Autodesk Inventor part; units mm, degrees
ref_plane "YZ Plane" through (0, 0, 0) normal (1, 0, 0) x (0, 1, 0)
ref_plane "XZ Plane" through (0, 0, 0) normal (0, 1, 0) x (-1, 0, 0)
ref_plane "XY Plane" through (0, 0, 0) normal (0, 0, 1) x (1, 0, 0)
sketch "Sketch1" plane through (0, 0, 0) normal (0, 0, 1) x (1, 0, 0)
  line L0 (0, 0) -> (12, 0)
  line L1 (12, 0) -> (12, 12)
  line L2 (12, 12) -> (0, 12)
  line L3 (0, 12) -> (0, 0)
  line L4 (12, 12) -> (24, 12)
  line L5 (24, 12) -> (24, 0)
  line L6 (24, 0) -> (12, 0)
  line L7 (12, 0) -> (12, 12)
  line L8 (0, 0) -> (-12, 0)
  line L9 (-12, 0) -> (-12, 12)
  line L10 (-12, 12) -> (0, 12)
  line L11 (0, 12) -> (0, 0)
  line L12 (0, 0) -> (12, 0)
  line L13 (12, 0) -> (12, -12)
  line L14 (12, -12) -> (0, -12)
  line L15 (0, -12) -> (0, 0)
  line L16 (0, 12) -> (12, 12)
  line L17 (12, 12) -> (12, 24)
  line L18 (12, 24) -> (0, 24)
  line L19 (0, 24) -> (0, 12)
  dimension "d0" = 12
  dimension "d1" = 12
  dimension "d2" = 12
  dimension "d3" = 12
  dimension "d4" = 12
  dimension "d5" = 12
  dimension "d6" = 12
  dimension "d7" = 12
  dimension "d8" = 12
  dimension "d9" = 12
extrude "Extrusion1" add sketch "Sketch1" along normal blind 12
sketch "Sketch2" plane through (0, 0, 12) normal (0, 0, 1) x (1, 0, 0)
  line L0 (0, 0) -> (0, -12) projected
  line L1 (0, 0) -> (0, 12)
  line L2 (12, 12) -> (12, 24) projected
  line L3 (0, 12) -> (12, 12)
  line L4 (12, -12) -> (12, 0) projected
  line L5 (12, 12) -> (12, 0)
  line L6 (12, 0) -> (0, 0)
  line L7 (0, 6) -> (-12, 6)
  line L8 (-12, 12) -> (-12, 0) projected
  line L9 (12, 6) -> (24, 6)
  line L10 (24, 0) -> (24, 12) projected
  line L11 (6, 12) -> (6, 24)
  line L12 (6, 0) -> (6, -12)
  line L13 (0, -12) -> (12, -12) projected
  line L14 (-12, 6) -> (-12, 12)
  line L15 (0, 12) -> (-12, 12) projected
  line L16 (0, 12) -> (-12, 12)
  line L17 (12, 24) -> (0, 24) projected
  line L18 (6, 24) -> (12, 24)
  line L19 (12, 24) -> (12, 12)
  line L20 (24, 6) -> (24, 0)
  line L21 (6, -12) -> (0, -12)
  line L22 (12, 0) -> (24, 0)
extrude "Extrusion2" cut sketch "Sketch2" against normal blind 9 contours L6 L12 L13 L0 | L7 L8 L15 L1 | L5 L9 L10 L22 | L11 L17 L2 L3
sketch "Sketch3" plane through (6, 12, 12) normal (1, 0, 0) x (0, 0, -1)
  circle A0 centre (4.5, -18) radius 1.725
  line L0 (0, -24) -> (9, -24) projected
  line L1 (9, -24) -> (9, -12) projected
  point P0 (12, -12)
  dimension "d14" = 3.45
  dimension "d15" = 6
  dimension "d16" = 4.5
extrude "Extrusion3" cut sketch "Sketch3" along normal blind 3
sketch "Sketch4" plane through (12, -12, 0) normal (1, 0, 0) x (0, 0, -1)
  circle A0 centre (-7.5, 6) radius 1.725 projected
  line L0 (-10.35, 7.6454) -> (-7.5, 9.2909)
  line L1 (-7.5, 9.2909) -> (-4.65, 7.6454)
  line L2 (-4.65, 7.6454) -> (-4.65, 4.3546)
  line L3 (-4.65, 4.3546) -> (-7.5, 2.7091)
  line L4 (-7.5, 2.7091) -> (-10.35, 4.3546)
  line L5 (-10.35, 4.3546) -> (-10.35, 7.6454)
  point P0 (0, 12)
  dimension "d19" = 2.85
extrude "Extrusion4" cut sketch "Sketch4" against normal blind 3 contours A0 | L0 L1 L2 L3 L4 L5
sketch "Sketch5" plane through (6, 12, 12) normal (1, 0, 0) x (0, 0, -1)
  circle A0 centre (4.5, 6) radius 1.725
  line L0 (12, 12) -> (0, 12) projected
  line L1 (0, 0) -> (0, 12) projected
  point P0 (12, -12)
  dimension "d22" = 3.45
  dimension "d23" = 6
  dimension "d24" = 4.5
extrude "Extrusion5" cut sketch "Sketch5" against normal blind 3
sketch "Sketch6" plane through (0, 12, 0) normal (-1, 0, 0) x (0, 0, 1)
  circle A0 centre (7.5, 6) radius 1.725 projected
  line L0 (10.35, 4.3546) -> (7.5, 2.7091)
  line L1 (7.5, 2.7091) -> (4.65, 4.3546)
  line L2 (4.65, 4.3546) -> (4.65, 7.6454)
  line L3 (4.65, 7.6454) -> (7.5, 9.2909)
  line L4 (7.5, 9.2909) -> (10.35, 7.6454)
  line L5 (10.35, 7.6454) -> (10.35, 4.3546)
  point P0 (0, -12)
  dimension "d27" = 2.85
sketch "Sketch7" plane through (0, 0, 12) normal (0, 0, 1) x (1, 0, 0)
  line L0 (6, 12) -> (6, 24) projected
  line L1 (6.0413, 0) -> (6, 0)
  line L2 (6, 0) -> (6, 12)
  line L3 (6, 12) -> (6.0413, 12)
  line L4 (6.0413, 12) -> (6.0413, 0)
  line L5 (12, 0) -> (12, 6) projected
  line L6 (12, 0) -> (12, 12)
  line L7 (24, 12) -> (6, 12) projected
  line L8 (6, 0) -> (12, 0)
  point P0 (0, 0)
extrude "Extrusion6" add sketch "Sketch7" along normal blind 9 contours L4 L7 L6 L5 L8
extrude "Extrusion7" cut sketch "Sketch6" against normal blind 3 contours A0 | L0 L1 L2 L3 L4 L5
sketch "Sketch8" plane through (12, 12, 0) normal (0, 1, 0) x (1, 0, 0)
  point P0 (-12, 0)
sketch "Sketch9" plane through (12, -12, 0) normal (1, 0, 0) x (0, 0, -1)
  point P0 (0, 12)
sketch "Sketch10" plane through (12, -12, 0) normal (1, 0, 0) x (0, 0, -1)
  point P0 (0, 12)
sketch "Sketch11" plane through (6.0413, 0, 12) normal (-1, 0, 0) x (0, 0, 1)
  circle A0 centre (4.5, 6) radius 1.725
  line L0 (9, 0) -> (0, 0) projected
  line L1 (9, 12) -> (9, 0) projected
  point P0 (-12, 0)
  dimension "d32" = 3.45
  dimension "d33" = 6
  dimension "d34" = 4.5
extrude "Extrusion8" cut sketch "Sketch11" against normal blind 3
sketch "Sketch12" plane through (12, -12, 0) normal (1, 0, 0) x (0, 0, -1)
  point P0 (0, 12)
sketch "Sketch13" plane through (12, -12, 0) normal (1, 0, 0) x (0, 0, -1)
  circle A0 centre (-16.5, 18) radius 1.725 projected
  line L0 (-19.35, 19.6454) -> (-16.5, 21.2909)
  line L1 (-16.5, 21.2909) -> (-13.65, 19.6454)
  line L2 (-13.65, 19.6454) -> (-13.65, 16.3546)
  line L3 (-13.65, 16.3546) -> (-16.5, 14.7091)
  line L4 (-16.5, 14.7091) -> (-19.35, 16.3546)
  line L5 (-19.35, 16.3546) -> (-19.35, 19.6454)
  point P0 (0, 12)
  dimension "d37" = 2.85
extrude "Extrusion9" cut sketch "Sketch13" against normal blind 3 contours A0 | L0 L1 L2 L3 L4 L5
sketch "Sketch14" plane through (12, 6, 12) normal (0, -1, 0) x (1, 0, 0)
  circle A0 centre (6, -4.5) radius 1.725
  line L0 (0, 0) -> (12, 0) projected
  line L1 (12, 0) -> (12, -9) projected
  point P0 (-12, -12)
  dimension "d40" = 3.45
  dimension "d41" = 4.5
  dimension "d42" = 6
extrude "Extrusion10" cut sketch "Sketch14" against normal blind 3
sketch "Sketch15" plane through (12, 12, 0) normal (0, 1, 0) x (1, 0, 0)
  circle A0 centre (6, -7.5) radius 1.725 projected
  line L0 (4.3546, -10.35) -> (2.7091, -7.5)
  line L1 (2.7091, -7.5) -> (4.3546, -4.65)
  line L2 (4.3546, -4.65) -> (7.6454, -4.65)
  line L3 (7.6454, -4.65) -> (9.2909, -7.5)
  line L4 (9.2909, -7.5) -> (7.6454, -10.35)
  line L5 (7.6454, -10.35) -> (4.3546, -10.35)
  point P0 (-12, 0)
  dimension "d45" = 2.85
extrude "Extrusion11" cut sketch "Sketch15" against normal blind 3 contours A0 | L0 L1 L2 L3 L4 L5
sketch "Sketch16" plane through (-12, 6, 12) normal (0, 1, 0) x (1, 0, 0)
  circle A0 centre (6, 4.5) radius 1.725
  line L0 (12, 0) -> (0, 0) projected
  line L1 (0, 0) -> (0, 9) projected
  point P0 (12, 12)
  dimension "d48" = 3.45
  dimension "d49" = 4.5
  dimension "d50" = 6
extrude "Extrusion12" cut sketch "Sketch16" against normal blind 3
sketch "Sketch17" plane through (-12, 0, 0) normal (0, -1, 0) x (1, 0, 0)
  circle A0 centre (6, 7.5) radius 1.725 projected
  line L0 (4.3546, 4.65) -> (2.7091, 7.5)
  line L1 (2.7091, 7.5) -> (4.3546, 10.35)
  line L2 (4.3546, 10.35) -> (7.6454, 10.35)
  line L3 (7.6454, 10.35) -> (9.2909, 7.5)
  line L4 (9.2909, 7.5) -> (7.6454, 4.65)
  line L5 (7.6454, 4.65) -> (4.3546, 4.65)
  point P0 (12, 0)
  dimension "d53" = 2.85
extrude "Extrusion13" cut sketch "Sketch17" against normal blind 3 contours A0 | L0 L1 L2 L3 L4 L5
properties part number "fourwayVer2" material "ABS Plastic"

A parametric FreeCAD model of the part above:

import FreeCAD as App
import Part
import Sketcher
Q = App.Units.Quantity


def add_polygon(sketch, points):
    """Adds a closed chain of lines whose ends are joined by coincident constraints."""
    first, n = sketch.GeometryCount, len(points)
    for a, b in zip(points, points[1:] + points[:1]):
        sketch.addGeometry(Part.LineSegment(App.Vector(*a, 0), App.Vector(*b, 0)), False)
    for i in range(n):
        sketch.addConstraint(Sketcher.Constraint("Coincident", first + i, 2, first + (i + 1) % n, 1))

doc = App.newDocument("Part")
body = doc.addObject("PartDesign::Body", "Body")

# Sketch on XY plane
sketch1 = doc.addObject("Sketcher::SketchObject", "Sketch")
body.addObject(sketch1)
sketch1.AttachmentSupport = (doc.XY_Plane, [""])
sketch1.MapMode = "FlatFace"
add_polygon(sketch1, [(-12, 0), (0, 0), (0, -12), (12, -12), (12, 0), (24, 0), (24, 12), (12, 12), (12, 24), (0, 24), (0, 12), (-12, 12)])  # lines 0-11
sketch1.addConstraint(Sketcher.Constraint("Horizontal", 0))
sketch1.addConstraint(Sketcher.Constraint("Vertical", 1))
sketch1.addConstraint(Sketcher.Constraint("Horizontal", 2))
sketch1.addConstraint(Sketcher.Constraint("Vertical", 3))
sketch1.addConstraint(Sketcher.Constraint("Horizontal", 4))
sketch1.addConstraint(Sketcher.Constraint("Vertical", 5))
sketch1.addConstraint(Sketcher.Constraint("Horizontal", 6))
sketch1.addConstraint(Sketcher.Constraint("Vertical", 7))
sketch1.addConstraint(Sketcher.Constraint("Horizontal", 8))
sketch1.addConstraint(Sketcher.Constraint("Vertical", 9))
sketch1.addConstraint(Sketcher.Constraint("Horizontal", 10))
sketch1.addConstraint(Sketcher.Constraint("Vertical", 11))
sketch1.addConstraint(Sketcher.Constraint("Coincident", 0, 2, -1, 1))
sketch1.addConstraint(Sketcher.Constraint("Symmetric", 1, 2, 9, 2, -1, 1))
sketch1.addConstraint(Sketcher.Constraint("Symmetric", 3, 2, 11, 2, -1, 1))
sketch1.addConstraint(Sketcher.Constraint("Symmetric", 6, 2, 10, 2, -2))
sketch1.addConstraint(Sketcher.Constraint("Equal", 2, 4))
sketch1.addConstraint(Sketcher.Constraint("Equal", 10, 1))
sketch1.addConstraint(Sketcher.Constraint("Equal", 5, 7))
sketch1.addConstraint(Sketcher.Constraint("DistanceX", 0, 1, 0, 2, Q("12 mm")))
pad1 = doc.addObject("PartDesign::Pad", "Pad")
body.addObject(pad1)
pad1.Profile = sketch1
pad1.Length = 12

# Sketch on XY plane
sketch2 = doc.addObject("Sketcher::SketchObject", "Sketch001")
body.addObject(sketch2)
sketch2.AttachmentSupport = (doc.XY_Plane, [""])
sketch2.MapMode = "FlatFace"
sketch2.AttachmentOffset = App.Placement(App.Vector(0, 0, 12), App.Rotation())
add_polygon(sketch2, [(6, 0), (0, 0), (0, -12), (6, -12)])  # lines 0-3
add_polygon(sketch2, [(-12, 6), (0, 6), (0, 12), (-12, 12)])  # lines 4-7
add_polygon(sketch2, [(12, 6), (12, 0), (24, 0), (24, 6)])  # lines 8-11
add_polygon(sketch2, [(6, 24), (6, 12), (12, 12), (12, 24)])  # lines 12-15
sketch2.addConstraint(Sketcher.Constraint("Horizontal", 0))
sketch2.addConstraint(Sketcher.Constraint("Vertical", 1))
sketch2.addConstraint(Sketcher.Constraint("Horizontal", 2))
sketch2.addConstraint(Sketcher.Constraint("Vertical", 3))
sketch2.addConstraint(Sketcher.Constraint("Horizontal", 4))
sketch2.addConstraint(Sketcher.Constraint("Vertical", 5))
sketch2.addConstraint(Sketcher.Constraint("Horizontal", 6))
sketch2.addConstraint(Sketcher.Constraint("Vertical", 7))
sketch2.addConstraint(Sketcher.Constraint("Vertical", 8))
sketch2.addConstraint(Sketcher.Constraint("Horizontal", 9))
sketch2.addConstraint(Sketcher.Constraint("Vertical", 10))
sketch2.addConstraint(Sketcher.Constraint("Horizontal", 11))
sketch2.addConstraint(Sketcher.Constraint("Vertical", 12))
sketch2.addConstraint(Sketcher.Constraint("Horizontal", 13))
sketch2.addConstraint(Sketcher.Constraint("Vertical", 14))
sketch2.addConstraint(Sketcher.Constraint("Horizontal", 15))
sketch2.addConstraint(Sketcher.Constraint("Coincident", 0, 2, -1, 1))
sketch2.addConstraint(Sketcher.Constraint("Symmetric", 1, 2, 5, 2, -1, 1))
sketch2.addConstraint(Sketcher.Constraint("Symmetric", 7, 2, 11, 2, -2))
sketch2.addConstraint(Sketcher.Constraint("Symmetric", 6, 2, 13, 2, -2))
sketch2.addConstraint(Sketcher.Constraint("PointOnObject", 8, 2, -1))
sketch2.addConstraint(Sketcher.Constraint("Vertical", 3, 2, 12, 2))
sketch2.addConstraint(Sketcher.Constraint("Equal", 6, 9))
sketch2.addConstraint(Sketcher.Constraint("Equal", 2, 13))
sketch2.addConstraint(Sketcher.Constraint("Equal", 11, 1))
sketch2.addConstraint(Sketcher.Constraint("Equal", 15, 5))
sketch2.addConstraint(Sketcher.Constraint("Equal", 3, 12))
sketch2.addConstraint(Sketcher.Constraint("DistanceX", 0, 2, 0, 1, Q("6 mm")))
pocket1 = doc.addObject("PartDesign::Pocket", "Pocket")
body.addObject(pocket1)
pocket1.Profile = sketch2
pocket1.Length = 9

# Sketch on YZ plane
sketch3 = doc.addObject("Sketcher::SketchObject", "Sketch002")
body.addObject(sketch3)
sketch3.AttachmentSupport = (doc.YZ_Plane, [""])
sketch3.MapMode = "FlatFace"
sketch3.AttachmentOffset = App.Placement(App.Vector(0, 0, 6), App.Rotation())
sketch3.addGeometry(Part.Circle(App.Vector(-6, 7.5, 0), App.Vector(0, 0, 1), 1.725), False)
sketch3.addConstraint(Sketcher.Constraint("Diameter", 0, Q("3.45 mm")))
sketch3.addConstraint(Sketcher.Constraint("DistanceX", 0, 3, -1, 1, Q("6 mm")))
sketch3.addConstraint(Sketcher.Constraint("DistanceY", -1, 1, 0, 3, Q("7.5 mm")))
pocket2 = doc.addObject("PartDesign::Pocket", "Pocket001")
body.addObject(pocket2)
pocket2.Profile = sketch3
pocket2.Length = 3
pocket2.Reversed = True

# Sketch on YZ plane
sketch4 = doc.addObject("Sketcher::SketchObject", "Sketch003")
body.addObject(sketch4)
sketch4.AttachmentSupport = (doc.YZ_Plane, [""])
sketch4.MapMode = "FlatFace"
sketch4.AttachmentOffset = App.Placement(App.Vector(0, 0, 12), App.Rotation())
add_polygon(sketch4, [(-2.7091, 7.5), (-4.3546, 10.35), (-7.6454, 10.35), (-9.2909, 7.5), (-7.6454, 4.65), (-4.3546, 4.65)])  # lines 0-5
sketch4.addConstraint(Sketcher.Constraint("Horizontal", 1))
sketch4.addConstraint(Sketcher.Constraint("Horizontal", 4))
sketch4.addConstraint(Sketcher.Constraint("Parallel", 0, 3))
sketch4.addConstraint(Sketcher.Constraint("Parallel", 2, 5))
sketch4.addConstraint(Sketcher.Constraint("Horizontal", 2, 2, 5, 2))
sketch4.addConstraint(Sketcher.Constraint("Vertical", 1, 2, 3, 2))
sketch4.addConstraint(Sketcher.Constraint("Vertical", 0, 2, 4, 2))
sketch4.addConstraint(Sketcher.Constraint("Angle", 0, Q("120.0008 deg")))
sketch4.addConstraint(Sketcher.Constraint("DistanceY", 2, 2, 1, 2, Q("2.85 mm")))
sketch4.addConstraint(Sketcher.Constraint("DistanceY", -1, 1, 2, 2, Q("7.5 mm")))
sketch4.addConstraint(Sketcher.Constraint("DistanceX", 1, 2, 1, 1, Q("3.2908 mm")))
sketch4.addConstraint(Sketcher.Constraint("DistanceX", 2, 2, -1, 1, Q("9.291 mm")))
pocket3 = doc.addObject("PartDesign::Pocket", "Pocket002")
body.addObject(pocket3)
pocket3.Profile = sketch4
pocket3.Length = 3

# Sketch on YZ plane
sketch5 = doc.addObject("Sketcher::SketchObject", "Sketch004")
body.addObject(sketch5)
sketch5.AttachmentSupport = (doc.YZ_Plane, [""])
sketch5.MapMode = "FlatFace"
sketch5.AttachmentOffset = App.Placement(App.Vector(0, 0, 6), App.Rotation())
sketch5.addGeometry(Part.Circle(App.Vector(18, 7.5, 0), App.Vector(0, 0, 1), 1.725), False)
sketch5.addConstraint(Sketcher.Constraint("Diameter", 0, Q("3.45 mm")))
sketch5.addConstraint(Sketcher.Constraint("DistanceX", -1, 1, 0, 3, Q("18 mm")))
sketch5.addConstraint(Sketcher.Constraint("DistanceY", -1, 1, 0, 3, Q("7.5 mm")))
pocket4 = doc.addObject("PartDesign::Pocket", "Pocket003")
body.addObject(pocket4)
pocket4.Profile = sketch5
pocket4.Length = 3

# Sketch on XY plane
sketch6 = doc.addObject("Sketcher::SketchObject", "Sketch005")
body.addObject(sketch6)
sketch6.AttachmentSupport = (doc.XY_Plane, [""])
sketch6.MapMode = "FlatFace"
sketch6.AttachmentOffset = App.Placement(App.Vector(0, 0, 12), App.Rotation())
add_polygon(sketch6, [(6.0413, 12), (6.0413, 0), (12, 0), (12, 12)])  # lines 0-3
sketch6.addConstraint(Sketcher.Constraint("Vertical", 0))
sketch6.addConstraint(Sketcher.Constraint("Horizontal", 1))
sketch6.addConstraint(Sketcher.Constraint("Vertical", 2))
sketch6.addConstraint(Sketcher.Constraint("Horizontal", 3))
sketch6.addConstraint(Sketcher.Constraint("PointOnObject", 0, 2, -1))
sketch6.addConstraint(Sketcher.Constraint("DistanceY", 0, 2, 0, 1, Q("12 mm")))
sketch6.addConstraint(Sketcher.Constraint("DistanceX", -1, 1, 1, 2, Q("12 mm")))
sketch6.addConstraint(Sketcher.Constraint("DistanceX", 1, 1, 1, 2, Q("5.9587 mm")))
pad2 = doc.addObject("PartDesign::Pad", "Pad001")
body.addObject(pad2)
pad2.Profile = sketch6
pad2.Length = 9

# Sketch on YZ plane
sketch7 = doc.addObject("Sketcher::SketchObject", "Sketch006")
body.addObject(sketch7)
sketch7.AttachmentSupport = (doc.YZ_Plane, [""])
sketch7.MapMode = "FlatFace"
add_polygon(sketch7, [(14.7091, 7.5), (16.3546, 10.35), (19.6454, 10.35), (21.2909, 7.5), (19.6454, 4.65), (16.3546, 4.65)])  # lines 0-5
sketch7.addConstraint(Sketcher.Constraint("Horizontal", 1))
sketch7.addConstraint(Sketcher.Constraint("Horizontal", 4))
sketch7.addConstraint(Sketcher.Constraint("Parallel", 0, 3))
sketch7.addConstraint(Sketcher.Constraint("Parallel", 2, 5))
sketch7.addConstraint(Sketcher.Constraint("Horizontal", 2, 2, 5, 2))
sketch7.addConstraint(Sketcher.Constraint("Vertical", 1, 2, 3, 2))
sketch7.addConstraint(Sketcher.Constraint("Vertical", 0, 2, 4, 2))
sketch7.addConstraint(Sketcher.Constraint("Angle", 0, Q("59.9992 deg")))
sketch7.addConstraint(Sketcher.Constraint("DistanceY", 2, 2, 1, 2, Q("2.85 mm")))
sketch7.addConstraint(Sketcher.Constraint("DistanceY", -1, 1, 2, 2, Q("7.5 mm")))
sketch7.addConstraint(Sketcher.Constraint("DistanceX", 1, 1, 1, 2, Q("3.2908 mm")))
sketch7.addConstraint(Sketcher.Constraint("DistanceX", -1, 1, 2, 2, Q("21.291 mm")))
pocket5 = doc.addObject("PartDesign::Pocket", "Pocket004")
body.addObject(pocket5)
pocket5.Profile = sketch7
pocket5.Length = 3
pocket5.Reversed = True

# Sketch on YZ plane
sketch8 = doc.addObject("Sketcher::SketchObject", "Sketch007")
body.addObject(sketch8)
sketch8.AttachmentSupport = (doc.YZ_Plane, [""])
sketch8.MapMode = "FlatFace"
sketch8.AttachmentOffset = App.Placement(App.Vector(0, 0, 6.0413), App.Rotation())
sketch8.addGeometry(Part.Circle(App.Vector(6, 16.5, 0), App.Vector(0, 0, 1), 1.725), False)
sketch8.addConstraint(Sketcher.Constraint("Diameter", 0, Q("3.45 mm")))
sketch8.addConstraint(Sketcher.Constraint("DistanceX", -1, 1, 0, 3, Q("6 mm")))
sketch8.addConstraint(Sketcher.Constraint("DistanceY", -1, 1, 0, 3, Q("16.5 mm")))
pocket6 = doc.addObject("PartDesign::Pocket", "Pocket005")
body.addObject(pocket6)
pocket6.Profile = sketch8
pocket6.Length = 3
pocket6.Reversed = True

# Sketch on YZ plane
sketch9 = doc.addObject("Sketcher::SketchObject", "Sketch008")
body.addObject(sketch9)
sketch9.AttachmentSupport = (doc.YZ_Plane, [""])
sketch9.MapMode = "FlatFace"
sketch9.AttachmentOffset = App.Placement(App.Vector(0, 0, 12), App.Rotation())
add_polygon(sketch9, [(9.2909, 16.5), (7.6454, 19.35), (4.3546, 19.35), (2.7091, 16.5), (4.3546, 13.65), (7.6454, 13.65)])  # lines 0-5
sketch9.addConstraint(Sketcher.Constraint("Horizontal", 1))
sketch9.addConstraint(Sketcher.Constraint("Horizontal", 4))
sketch9.addConstraint(Sketcher.Constraint("Parallel", 0, 3))
sketch9.addConstraint(Sketcher.Constraint("Parallel", 2, 5))
sketch9.addConstraint(Sketcher.Constraint("Horizontal", 2, 2, 5, 2))
sketch9.addConstraint(Sketcher.Constraint("Vertical", 1, 2, 3, 2))
sketch9.addConstraint(Sketcher.Constraint("Vertical", 0, 2, 4, 2))
sketch9.addConstraint(Sketcher.Constraint("Angle", 0, Q("120.0008 deg")))
sketch9.addConstraint(Sketcher.Constraint("DistanceY", 2, 2, 1, 2, Q("2.85 mm")))
sketch9.addConstraint(Sketcher.Constraint("DistanceY", -1, 1, 2, 2, Q("16.5 mm")))
sketch9.addConstraint(Sketcher.Constraint("DistanceX", 1, 2, 1, 1, Q("3.2908 mm")))
sketch9.addConstraint(Sketcher.Constraint("DistanceX", -1, 1, 2, 2, Q("2.709 mm")))
pocket7 = doc.addObject("PartDesign::Pocket", "Pocket006")
body.addObject(pocket7)
pocket7.Profile = sketch9
pocket7.Length = 3

# Sketch on XZ plane
sketch10 = doc.addObject("Sketcher::SketchObject", "Sketch009")
body.addObject(sketch10)
sketch10.AttachmentSupport = (doc.XZ_Plane, [""])
sketch10.MapMode = "FlatFace"
sketch10.AttachmentOffset = App.Placement(App.Vector(0, 0, -6), App.Rotation())
sketch10.addGeometry(Part.Circle(App.Vector(18, 7.5, 0), App.Vector(0, 0, 1), 1.725), False)
sketch10.addConstraint(Sketcher.Constraint("Diameter", 0, Q("3.45 mm")))
sketch10.addConstraint(Sketcher.Constraint("DistanceX", -1, 1, 0, 3, Q("18 mm")))
sketch10.addConstraint(Sketcher.Constraint("DistanceY", -1, 1, 0, 3, Q("7.5 mm")))
pocket8 = doc.addObject("PartDesign::Pocket", "Pocket007")
body.addObject(pocket8)
pocket8.Profile = sketch10
pocket8.Length = 3

# Sketch on XZ plane
sketch11 = doc.addObject("Sketcher::SketchObject", "Sketch010")
body.addObject(sketch11)
sketch11.AttachmentSupport = (doc.XZ_Plane, [""])
sketch11.MapMode = "FlatFace"
sketch11.AttachmentOffset = App.Placement(App.Vector(0, 0, -12), App.Rotation())
add_polygon(sketch11, [(14.7091, 7.5), (16.3546, 10.35), (19.6454, 10.35), (21.2909, 7.5), (19.6454, 4.65), (16.3546, 4.65)])  # lines 0-5
sketch11.addConstraint(Sketcher.Constraint("Horizontal", 1))
sketch11.addConstraint(Sketcher.Constraint("Horizontal", 4))
sketch11.addConstraint(Sketcher.Constraint("Parallel", 0, 3))
sketch11.addConstraint(Sketcher.Constraint("Parallel", 2, 5))
sketch11.addConstraint(Sketcher.Constraint("Horizontal", 2, 2, 5, 2))
sketch11.addConstraint(Sketcher.Constraint("Vertical", 1, 2, 3, 2))
sketch11.addConstraint(Sketcher.Constraint("Vertical", 0, 2, 4, 2))
sketch11.addConstraint(Sketcher.Constraint("Angle", 0, Q("59.9992 deg")))
sketch11.addConstraint(Sketcher.Constraint("DistanceY", 2, 2, 1, 2, Q("2.85 mm")))
sketch11.addConstraint(Sketcher.Constraint("DistanceY", -1, 1, 2, 2, Q("7.5 mm")))
sketch11.addConstraint(Sketcher.Constraint("DistanceX", 1, 1, 1, 2, Q("3.2908 mm")))
sketch11.addConstraint(Sketcher.Constraint("DistanceX", -1, 1, 2, 2, Q("21.291 mm")))
pocket9 = doc.addObject("PartDesign::Pocket", "Pocket008")
body.addObject(pocket9)
pocket9.Profile = sketch11
pocket9.Length = 3
pocket9.Reversed = True

# Sketch on XZ plane
sketch12 = doc.addObject("Sketcher::SketchObject", "Sketch011")
body.addObject(sketch12)
sketch12.AttachmentSupport = (doc.XZ_Plane, [""])
sketch12.MapMode = "FlatFace"
sketch12.AttachmentOffset = App.Placement(App.Vector(0, 0, -6), App.Rotation())
sketch12.addGeometry(Part.Circle(App.Vector(-6, 7.5, 0), App.Vector(0, 0, 1), 1.725), False)
sketch12.addConstraint(Sketcher.Constraint("Diameter", 0, Q("3.45 mm")))
sketch12.addConstraint(Sketcher.Constraint("DistanceX", 0, 3, -1, 1, Q("6 mm")))
sketch12.addConstraint(Sketcher.Constraint("DistanceY", -1, 1, 0, 3, Q("7.5 mm")))
pocket10 = doc.addObject("PartDesign::Pocket", "Pocket009")
body.addObject(pocket10)
pocket10.Profile = sketch12
pocket10.Length = 3
pocket10.Reversed = True

# Sketch on XZ plane
sketch13 = doc.addObject("Sketcher::SketchObject", "Sketch012")
body.addObject(sketch13)
sketch13.AttachmentSupport = (doc.XZ_Plane, [""])
sketch13.MapMode = "FlatFace"
add_polygon(sketch13, [(-9.2909, 7.5), (-7.6454, 4.65), (-4.3546, 4.65), (-2.7091, 7.5), (-4.3546, 10.35), (-7.6454, 10.35)])  # lines 0-5
sketch13.addConstraint(Sketcher.Constraint("Horizontal", 1))
sketch13.addConstraint(Sketcher.Constraint("Horizontal", 4))
sketch13.addConstraint(Sketcher.Constraint("Parallel", 0, 3))
sketch13.addConstraint(Sketcher.Constraint("Parallel", 2, 5))
sketch13.addConstraint(Sketcher.Constraint("Horizontal", 2, 2, 5, 2))
sketch13.addConstraint(Sketcher.Constraint("Vertical", 1, 2, 3, 2))
sketch13.addConstraint(Sketcher.Constraint("Vertical", 0, 2, 4, 2))
sketch13.addConstraint(Sketcher.Constraint("Angle", 0, Q("-59.9992 deg")))
sketch13.addConstraint(Sketcher.Constraint("DistanceY", 1, 2, 2, 2, Q("2.85 mm")))
sketch13.addConstraint(Sketcher.Constraint("DistanceY", -1, 1, 2, 2, Q("7.5 mm")))
sketch13.addConstraint(Sketcher.Constraint("DistanceX", 1, 1, 1, 2, Q("3.2908 mm")))
sketch13.addConstraint(Sketcher.Constraint("DistanceX", 2, 2, -1, 1, Q("2.709 mm")))
pocket11 = doc.addObject("PartDesign::Pocket", "Pocket010")
body.addObject(pocket11)
pocket11.Profile = sketch13
pocket11.Length = 3

doc.recompute()
